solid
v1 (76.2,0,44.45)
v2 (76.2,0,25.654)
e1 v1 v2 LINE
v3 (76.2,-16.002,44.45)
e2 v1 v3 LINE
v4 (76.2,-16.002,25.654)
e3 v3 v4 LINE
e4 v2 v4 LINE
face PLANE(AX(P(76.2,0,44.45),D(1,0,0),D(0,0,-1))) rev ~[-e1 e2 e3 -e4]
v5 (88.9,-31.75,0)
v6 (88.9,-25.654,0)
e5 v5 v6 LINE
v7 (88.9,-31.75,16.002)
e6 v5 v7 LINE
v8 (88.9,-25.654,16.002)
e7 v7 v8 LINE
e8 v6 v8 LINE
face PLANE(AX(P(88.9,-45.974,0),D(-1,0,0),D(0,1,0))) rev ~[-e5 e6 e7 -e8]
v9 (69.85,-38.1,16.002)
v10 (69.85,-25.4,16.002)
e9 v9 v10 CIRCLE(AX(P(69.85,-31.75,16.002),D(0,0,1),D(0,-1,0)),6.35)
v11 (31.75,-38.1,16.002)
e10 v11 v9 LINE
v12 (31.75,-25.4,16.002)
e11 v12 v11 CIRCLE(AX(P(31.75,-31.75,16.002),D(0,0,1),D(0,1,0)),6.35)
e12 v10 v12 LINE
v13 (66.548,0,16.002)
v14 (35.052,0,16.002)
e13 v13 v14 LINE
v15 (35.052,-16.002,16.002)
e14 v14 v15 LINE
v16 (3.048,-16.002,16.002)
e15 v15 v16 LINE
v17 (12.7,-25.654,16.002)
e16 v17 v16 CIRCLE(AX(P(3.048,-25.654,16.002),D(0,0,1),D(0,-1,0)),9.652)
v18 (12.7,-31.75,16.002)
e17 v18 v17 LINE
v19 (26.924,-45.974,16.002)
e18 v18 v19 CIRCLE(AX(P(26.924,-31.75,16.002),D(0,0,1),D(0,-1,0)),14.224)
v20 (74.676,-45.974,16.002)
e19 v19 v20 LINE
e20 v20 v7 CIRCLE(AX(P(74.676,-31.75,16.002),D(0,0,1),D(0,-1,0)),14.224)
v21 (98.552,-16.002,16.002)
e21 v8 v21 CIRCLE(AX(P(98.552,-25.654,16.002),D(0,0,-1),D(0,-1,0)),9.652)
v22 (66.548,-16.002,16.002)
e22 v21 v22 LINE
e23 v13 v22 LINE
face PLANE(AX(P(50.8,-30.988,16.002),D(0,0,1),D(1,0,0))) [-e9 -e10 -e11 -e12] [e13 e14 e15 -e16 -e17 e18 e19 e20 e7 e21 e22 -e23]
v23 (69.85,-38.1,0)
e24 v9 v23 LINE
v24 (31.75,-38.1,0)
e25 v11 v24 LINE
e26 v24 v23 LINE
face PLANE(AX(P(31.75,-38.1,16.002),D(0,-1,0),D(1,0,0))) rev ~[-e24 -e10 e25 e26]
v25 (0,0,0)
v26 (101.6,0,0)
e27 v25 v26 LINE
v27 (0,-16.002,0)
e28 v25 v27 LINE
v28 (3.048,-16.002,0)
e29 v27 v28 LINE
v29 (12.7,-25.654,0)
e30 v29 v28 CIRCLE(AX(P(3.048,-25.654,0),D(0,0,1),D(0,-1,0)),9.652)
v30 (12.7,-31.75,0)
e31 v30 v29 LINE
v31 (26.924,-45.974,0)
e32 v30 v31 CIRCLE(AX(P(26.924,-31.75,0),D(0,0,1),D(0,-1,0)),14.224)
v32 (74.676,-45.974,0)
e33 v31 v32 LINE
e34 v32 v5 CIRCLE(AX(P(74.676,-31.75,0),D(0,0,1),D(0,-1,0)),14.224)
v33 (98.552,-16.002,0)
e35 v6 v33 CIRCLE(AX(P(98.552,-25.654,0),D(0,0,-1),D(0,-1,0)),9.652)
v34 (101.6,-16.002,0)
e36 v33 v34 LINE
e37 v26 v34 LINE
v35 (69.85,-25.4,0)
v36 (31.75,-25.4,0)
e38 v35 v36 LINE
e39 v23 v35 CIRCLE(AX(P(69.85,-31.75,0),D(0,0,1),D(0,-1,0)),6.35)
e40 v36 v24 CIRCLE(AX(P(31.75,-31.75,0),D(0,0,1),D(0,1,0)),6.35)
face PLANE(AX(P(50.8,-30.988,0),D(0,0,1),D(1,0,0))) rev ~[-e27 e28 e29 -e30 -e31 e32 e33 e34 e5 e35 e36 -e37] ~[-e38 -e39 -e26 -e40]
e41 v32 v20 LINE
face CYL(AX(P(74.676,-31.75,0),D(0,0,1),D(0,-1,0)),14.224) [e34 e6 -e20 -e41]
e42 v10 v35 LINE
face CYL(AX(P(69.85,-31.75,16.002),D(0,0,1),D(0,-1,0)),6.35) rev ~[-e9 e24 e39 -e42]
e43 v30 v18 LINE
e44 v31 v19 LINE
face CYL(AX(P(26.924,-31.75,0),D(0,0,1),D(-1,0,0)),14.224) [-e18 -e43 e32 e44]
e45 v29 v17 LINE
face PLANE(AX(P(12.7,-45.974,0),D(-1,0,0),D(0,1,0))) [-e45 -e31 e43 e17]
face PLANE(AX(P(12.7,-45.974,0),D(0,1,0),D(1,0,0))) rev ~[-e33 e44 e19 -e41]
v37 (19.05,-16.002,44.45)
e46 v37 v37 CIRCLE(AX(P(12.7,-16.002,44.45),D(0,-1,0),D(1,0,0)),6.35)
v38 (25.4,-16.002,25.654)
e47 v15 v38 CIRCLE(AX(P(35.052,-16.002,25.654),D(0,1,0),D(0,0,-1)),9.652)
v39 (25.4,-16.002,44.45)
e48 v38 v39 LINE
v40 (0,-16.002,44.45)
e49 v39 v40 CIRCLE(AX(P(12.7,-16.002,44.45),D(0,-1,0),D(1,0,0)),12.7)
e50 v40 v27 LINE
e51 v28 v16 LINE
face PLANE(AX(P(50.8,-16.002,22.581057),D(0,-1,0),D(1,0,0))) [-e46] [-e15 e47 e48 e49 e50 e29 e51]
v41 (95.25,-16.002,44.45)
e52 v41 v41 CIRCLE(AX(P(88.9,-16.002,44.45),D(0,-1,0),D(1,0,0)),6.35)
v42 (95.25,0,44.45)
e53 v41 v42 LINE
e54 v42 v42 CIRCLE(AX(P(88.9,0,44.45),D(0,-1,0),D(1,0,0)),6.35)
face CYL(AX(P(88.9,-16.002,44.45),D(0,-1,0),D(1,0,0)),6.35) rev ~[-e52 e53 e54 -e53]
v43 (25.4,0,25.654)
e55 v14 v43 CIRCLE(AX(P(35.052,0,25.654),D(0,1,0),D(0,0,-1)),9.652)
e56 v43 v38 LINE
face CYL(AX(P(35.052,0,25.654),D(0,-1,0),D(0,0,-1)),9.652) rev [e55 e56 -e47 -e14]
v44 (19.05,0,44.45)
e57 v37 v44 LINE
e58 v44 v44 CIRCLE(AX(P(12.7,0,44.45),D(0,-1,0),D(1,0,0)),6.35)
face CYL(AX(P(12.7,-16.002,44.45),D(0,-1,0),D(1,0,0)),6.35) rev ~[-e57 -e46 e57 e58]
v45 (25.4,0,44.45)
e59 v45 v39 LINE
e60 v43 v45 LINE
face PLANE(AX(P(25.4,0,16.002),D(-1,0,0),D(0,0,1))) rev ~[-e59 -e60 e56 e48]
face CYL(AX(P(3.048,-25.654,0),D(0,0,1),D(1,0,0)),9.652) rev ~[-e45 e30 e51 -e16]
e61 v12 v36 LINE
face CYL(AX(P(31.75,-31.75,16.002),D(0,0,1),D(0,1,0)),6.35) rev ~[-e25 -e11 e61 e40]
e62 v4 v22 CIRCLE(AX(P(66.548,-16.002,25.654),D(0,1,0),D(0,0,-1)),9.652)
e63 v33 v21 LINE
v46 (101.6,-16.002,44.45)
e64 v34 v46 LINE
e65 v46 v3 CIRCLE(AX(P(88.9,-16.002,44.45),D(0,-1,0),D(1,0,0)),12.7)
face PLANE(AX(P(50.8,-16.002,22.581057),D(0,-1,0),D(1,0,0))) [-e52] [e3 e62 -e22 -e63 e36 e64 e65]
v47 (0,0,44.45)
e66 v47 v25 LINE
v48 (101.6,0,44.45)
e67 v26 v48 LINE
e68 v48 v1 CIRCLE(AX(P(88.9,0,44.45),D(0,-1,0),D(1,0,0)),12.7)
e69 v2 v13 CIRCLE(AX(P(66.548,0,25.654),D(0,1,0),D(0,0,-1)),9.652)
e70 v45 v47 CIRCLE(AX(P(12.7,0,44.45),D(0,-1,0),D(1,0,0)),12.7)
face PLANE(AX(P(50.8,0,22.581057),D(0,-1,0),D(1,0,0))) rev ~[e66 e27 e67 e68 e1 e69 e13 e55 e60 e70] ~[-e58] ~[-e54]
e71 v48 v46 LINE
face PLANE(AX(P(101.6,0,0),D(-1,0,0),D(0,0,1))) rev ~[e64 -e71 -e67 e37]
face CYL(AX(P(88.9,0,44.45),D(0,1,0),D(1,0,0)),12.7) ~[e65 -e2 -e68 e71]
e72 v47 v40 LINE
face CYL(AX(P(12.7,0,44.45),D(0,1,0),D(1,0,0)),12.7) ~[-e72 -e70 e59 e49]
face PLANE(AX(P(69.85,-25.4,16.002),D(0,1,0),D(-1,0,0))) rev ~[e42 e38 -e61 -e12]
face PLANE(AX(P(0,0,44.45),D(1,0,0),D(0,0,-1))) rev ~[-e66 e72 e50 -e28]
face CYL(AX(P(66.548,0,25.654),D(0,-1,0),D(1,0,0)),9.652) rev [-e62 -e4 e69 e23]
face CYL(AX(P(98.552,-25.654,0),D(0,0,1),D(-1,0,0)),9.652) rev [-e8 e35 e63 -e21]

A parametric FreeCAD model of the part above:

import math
import FreeCAD as App
import Part
import Sketcher
from FreeCAD import Vector
Q = App.Units.Quantity


def edges_at(feature, points):
    """Names of the edges that pass closest to the given points."""
    edges = feature.Shape.Edges
    near = lambda p: min(range(len(edges)), key=lambda i: edges[i].distToShape(Part.Vertex(*p))[0])
    return sorted({f"Edge{near(p) + 1}" for p in points})

doc = App.newDocument("Part")
params = doc.addObject("Spreadsheet::Sheet", "Params")
for row, (alias, value) in enumerate([
    ("sketch1_radius", "0.5 in"),
    ("sketch1_width", "4 in"),
    ("sketch1_height", "1.75 in"),
    ("sketch1_height2", "1.12 in"),
    ("pad1_length", "0.63 in"),
    ("fillet_radius", "0.38 in"),
    ("sketch2_width", "3 in"),
    ("sketch2_height", "1.18 in"),
    ("pad2_length", "0.63 in"),
    ("fillet2_radius", "0.56 in"),
    ("fillet3_radius", "0.38 in"),
    ("sketch3_diameter", "0.5 in"),
    ("sketch4_radius", "0.25 in"),
    ("sketch4_width", "1.5 in"),
], start=1):
    params.set(f"A{row}", alias)
    params.set(f"B{row}", "=" + value)
    params.setAlias(f"B{row}", alias)

body = doc.addObject("PartDesign::Body", "Body")

sketch1 = body.newObject("Sketcher::SketchObject", "Sketch")
sketch1.AttachmentSupport = (doc.getObject("XZ_Plane"), [""])
sketch1.MapMode = "FlatFace"
sketch1.addGeometry([
    Part.LineSegment(Vector(0, 44, 0), Vector(0, 0, 0)),
    Part.LineSegment(Vector(0, 0, 0), Vector(102, 0, 0)),
    Part.LineSegment(Vector(102, 0, 0), Vector(102, 44, 0)),
    Part.ArcOfCircle(Part.Circle(Vector(89, 44, 0), Vector(0, 0, 1), 13), math.radians(0), math.radians(180)),
    Part.LineSegment(Vector(76, 44, 0), Vector(76, 16, 0)),
    Part.LineSegment(Vector(76, 16, 0), Vector(25, 16, 0)),
    Part.LineSegment(Vector(25, 16, 0), Vector(25, 44, 0)),
    Part.ArcOfCircle(Part.Circle(Vector(13, 44, 0), Vector(0, 0, 1), 13), math.radians(0), math.radians(180)),
], False)
sketch1.addConstraint([
    Sketcher.Constraint("Coincident", 0, 2, 1, 1),
    Sketcher.Constraint("Coincident", 1, 2, 2, 1),
    Sketcher.Constraint("Tangent", 2, 2, 3, 1),
    Sketcher.Constraint("Tangent", 3, 2, 4, 1),
    Sketcher.Constraint("Coincident", 4, 2, 5, 1),
    Sketcher.Constraint("Coincident", 5, 2, 6, 1),
    Sketcher.Constraint("Tangent", 6, 2, 7, 1),
    Sketcher.Constraint("Tangent", 7, 2, 0, 1),
    Sketcher.Constraint("Vertical", 0),
    Sketcher.Constraint("Horizontal", 1),
    Sketcher.Constraint("Vertical", 2),
    Sketcher.Constraint("Vertical", 4),
    Sketcher.Constraint("Horizontal", 5),
    Sketcher.Constraint("Vertical", 6),
    Sketcher.Constraint("Coincident", 0, 2, -1, 1),
    Sketcher.Constraint("Equal", 3, 7),
    Sketcher.Constraint("Horizontal", 3, 3, 7, 3),
    Sketcher.Constraint("Radius", 3, Q("0.5 in")),
    Sketcher.Constraint("DistanceX", 1, 1, 1, 2, Q("4 in")),
    Sketcher.Constraint("DistanceY", 0, 2, 0, 1, Q("1.75 in")),
    Sketcher.Constraint("DistanceY", 4, 2, 4, 1, Q("1.12 in")),
])
sketch1.setExpression("Constraints[17]", "Params.sketch1_radius")
sketch1.setExpression("Constraints[18]", "Params.sketch1_width")
sketch1.setExpression("Constraints[19]", "Params.sketch1_height")
sketch1.setExpression("Constraints[20]", "Params.sketch1_height2")
pad1 = body.newObject("PartDesign::Pad", "Pad")
pad1.Profile = sketch1
pad1.setExpression("Length", "Params.pad1_length")
doc.recompute()

fillet = body.newObject("PartDesign::Fillet", "Fillet")
fillet.Base = (pad1, edges_at(pad1, [(25.4, -8.001, 16.002), (76.2, -8.001, 16.002)]))
fillet.setExpression("Radius", "Params.fillet_radius")

sketch2 = body.newObject("Sketcher::SketchObject", "Sketch001")
sketch2.AttachmentSupport = (doc.getObject("XY_Plane"), [""])
sketch2.MapMode = "FlatFace"
sketch2.addGeometry([
    Part.LineSegment(Vector(13, -16, 0), Vector(13, -46, 0)),
    Part.LineSegment(Vector(13, -46, 0), Vector(89, -46, 0)),
    Part.LineSegment(Vector(89, -46, 0), Vector(89, -16, 0)),
    Part.LineSegment(Vector(89, -16, 0), Vector(13, -16, 0)),
], False)
sketch2.addConstraint([
    Sketcher.Constraint("Coincident", 0, 2, 1, 1),
    Sketcher.Constraint("Coincident", 1, 2, 2, 1),
    Sketcher.Constraint("Coincident", 2, 2, 3, 1),
    Sketcher.Constraint("Coincident", 3, 2, 0, 1),
    Sketcher.Constraint("Vertical", 0),
    Sketcher.Constraint("Horizontal", 1),
    Sketcher.Constraint("Vertical", 2),
    Sketcher.Constraint("Horizontal", 3),
    Sketcher.Constraint("DistanceX", 1, 1, 1, 2, Q("3 in")),
    Sketcher.Constraint("DistanceY", 0, 2, 0, 1, Q("1.18 in")),
    Sketcher.Constraint("DistanceX", -1, 1, 0, 2, Q("0.5 in")),
    Sketcher.Constraint("DistanceY", 0, 2, -1, 1, Q("1.81 in")),
])
sketch2.setExpression("Constraints[8]", "Params.sketch2_width")
sketch2.setExpression("Constraints[9]", "Params.sketch2_height")
pad2 = body.newObject("PartDesign::Pad", "Pad001")
pad2.Profile = sketch2
pad2.setExpression("Length", "Params.pad2_length")
doc.recompute()

fillet2 = body.newObject("PartDesign::Fillet", "Fillet001")
fillet2.Base = (pad2, edges_at(pad2, [(88.9, -45.974, 8.001), (12.7, -45.974, 8.001)]))
fillet2.setExpression("Radius", "Params.fillet2_radius")
doc.recompute()

fillet3 = body.newObject("PartDesign::Fillet", "Fillet002")
fillet3.Base = (fillet2, edges_at(fillet2, [(88.9, -16.002, 8.001), (12.7, -16.002, 8.001)]))
fillet3.setExpression("Radius", "Params.fillet3_radius")

sketch3 = body.newObject("Sketcher::SketchObject", "Sketch002")
sketch3.AttachmentSupport = (doc.getObject("XZ_Plane"), [""])
sketch3.MapMode = "FlatFace"
sketch3.AttachmentOffset = App.Placement(Vector(0, 0, 0.63 * 25.4), App.Rotation())
sketch3.addGeometry([
    Part.Circle(Vector(13, 44, 0), Vector(0, 0, 1), 6),
    Part.Circle(Vector(89, 44, 0), Vector(0, 0, 1), 6),
], False)
sketch3.addConstraint([
    Sketcher.Constraint("Equal", 0, 1),
    Sketcher.Constraint("Horizontal", 0, 3, 1, 3),
    Sketcher.Constraint("Diameter", 0, Q("0.5 in")),
    Sketcher.Constraint("DistanceX", 0, 3, 1, 3, Q("3 in")),
    Sketcher.Constraint("DistanceX", -1, 1, 0, 3, Q("0.5 in")),
    Sketcher.Constraint("DistanceY", -1, 1, 0, 3, Q("1.75 in")),
])
sketch3.setExpression("Constraints[2]", "Params.sketch3_diameter")
pocket1 = body.newObject("PartDesign::Pocket", "Pocket")
pocket1.Profile = sketch3
pocket1.Type = "ThroughAll"

sketch4 = body.newObject("Sketcher::SketchObject", "Sketch003")
sketch4.AttachmentSupport = (doc.getObject("XY_Plane"), [""])
sketch4.MapMode = "FlatFace"
sketch4.AttachmentOffset = App.Placement(Vector(0, 0, 0.63 * 25.4), App.Rotation())
sketch4.addGeometry([
    Part.LineSegment(Vector(70, -25, 0), Vector(32, -25, 0)),
    Part.ArcOfCircle(Part.Circle(Vector(32, -32, 0), Vector(0, 0, 1), 6), math.radians(90), math.radians(270)),
    Part.LineSegment(Vector(32, -38, 0), Vector(70, -38, 0)),
    Part.ArcOfCircle(Part.Circle(Vector(70, -32, 0), Vector(0, 0, 1), 6), math.radians(-90), math.radians(90)),
], False)
sketch4.addConstraint([
    Sketcher.Constraint("Tangent", 0, 2, 1, 1),
    Sketcher.Constraint("Tangent", 1, 2, 2, 1),
    Sketcher.Constraint("Tangent", 2, 2, 3, 1),
    Sketcher.Constraint("Tangent", 3, 2, 0, 1),
    Sketcher.Constraint("Horizontal", 0),
    Sketcher.Constraint("Horizontal", 2),
    Sketcher.Constraint("Radius", 1, Q("0.25 in")),
    Sketcher.Constraint("DistanceX", 0, 2, 0, 1, Q("1.5 in")),
    Sketcher.Constraint("DistanceY", 0, 2, -1, 1, Q("1 in")),
    Sketcher.Constraint("DistanceX", -1, 1, 1, 3, Q("1.25 in")),
])
sketch4.setExpression("Constraints[6]", "Params.sketch4_radius")
sketch4.setExpression("Constraints[7]", "Params.sketch4_width")
pocket2 = body.newObject("PartDesign::Pocket", "Pocket001")
pocket2.Profile = sketch4
pocket2.Type = "ThroughAll"

doc.recompute()
